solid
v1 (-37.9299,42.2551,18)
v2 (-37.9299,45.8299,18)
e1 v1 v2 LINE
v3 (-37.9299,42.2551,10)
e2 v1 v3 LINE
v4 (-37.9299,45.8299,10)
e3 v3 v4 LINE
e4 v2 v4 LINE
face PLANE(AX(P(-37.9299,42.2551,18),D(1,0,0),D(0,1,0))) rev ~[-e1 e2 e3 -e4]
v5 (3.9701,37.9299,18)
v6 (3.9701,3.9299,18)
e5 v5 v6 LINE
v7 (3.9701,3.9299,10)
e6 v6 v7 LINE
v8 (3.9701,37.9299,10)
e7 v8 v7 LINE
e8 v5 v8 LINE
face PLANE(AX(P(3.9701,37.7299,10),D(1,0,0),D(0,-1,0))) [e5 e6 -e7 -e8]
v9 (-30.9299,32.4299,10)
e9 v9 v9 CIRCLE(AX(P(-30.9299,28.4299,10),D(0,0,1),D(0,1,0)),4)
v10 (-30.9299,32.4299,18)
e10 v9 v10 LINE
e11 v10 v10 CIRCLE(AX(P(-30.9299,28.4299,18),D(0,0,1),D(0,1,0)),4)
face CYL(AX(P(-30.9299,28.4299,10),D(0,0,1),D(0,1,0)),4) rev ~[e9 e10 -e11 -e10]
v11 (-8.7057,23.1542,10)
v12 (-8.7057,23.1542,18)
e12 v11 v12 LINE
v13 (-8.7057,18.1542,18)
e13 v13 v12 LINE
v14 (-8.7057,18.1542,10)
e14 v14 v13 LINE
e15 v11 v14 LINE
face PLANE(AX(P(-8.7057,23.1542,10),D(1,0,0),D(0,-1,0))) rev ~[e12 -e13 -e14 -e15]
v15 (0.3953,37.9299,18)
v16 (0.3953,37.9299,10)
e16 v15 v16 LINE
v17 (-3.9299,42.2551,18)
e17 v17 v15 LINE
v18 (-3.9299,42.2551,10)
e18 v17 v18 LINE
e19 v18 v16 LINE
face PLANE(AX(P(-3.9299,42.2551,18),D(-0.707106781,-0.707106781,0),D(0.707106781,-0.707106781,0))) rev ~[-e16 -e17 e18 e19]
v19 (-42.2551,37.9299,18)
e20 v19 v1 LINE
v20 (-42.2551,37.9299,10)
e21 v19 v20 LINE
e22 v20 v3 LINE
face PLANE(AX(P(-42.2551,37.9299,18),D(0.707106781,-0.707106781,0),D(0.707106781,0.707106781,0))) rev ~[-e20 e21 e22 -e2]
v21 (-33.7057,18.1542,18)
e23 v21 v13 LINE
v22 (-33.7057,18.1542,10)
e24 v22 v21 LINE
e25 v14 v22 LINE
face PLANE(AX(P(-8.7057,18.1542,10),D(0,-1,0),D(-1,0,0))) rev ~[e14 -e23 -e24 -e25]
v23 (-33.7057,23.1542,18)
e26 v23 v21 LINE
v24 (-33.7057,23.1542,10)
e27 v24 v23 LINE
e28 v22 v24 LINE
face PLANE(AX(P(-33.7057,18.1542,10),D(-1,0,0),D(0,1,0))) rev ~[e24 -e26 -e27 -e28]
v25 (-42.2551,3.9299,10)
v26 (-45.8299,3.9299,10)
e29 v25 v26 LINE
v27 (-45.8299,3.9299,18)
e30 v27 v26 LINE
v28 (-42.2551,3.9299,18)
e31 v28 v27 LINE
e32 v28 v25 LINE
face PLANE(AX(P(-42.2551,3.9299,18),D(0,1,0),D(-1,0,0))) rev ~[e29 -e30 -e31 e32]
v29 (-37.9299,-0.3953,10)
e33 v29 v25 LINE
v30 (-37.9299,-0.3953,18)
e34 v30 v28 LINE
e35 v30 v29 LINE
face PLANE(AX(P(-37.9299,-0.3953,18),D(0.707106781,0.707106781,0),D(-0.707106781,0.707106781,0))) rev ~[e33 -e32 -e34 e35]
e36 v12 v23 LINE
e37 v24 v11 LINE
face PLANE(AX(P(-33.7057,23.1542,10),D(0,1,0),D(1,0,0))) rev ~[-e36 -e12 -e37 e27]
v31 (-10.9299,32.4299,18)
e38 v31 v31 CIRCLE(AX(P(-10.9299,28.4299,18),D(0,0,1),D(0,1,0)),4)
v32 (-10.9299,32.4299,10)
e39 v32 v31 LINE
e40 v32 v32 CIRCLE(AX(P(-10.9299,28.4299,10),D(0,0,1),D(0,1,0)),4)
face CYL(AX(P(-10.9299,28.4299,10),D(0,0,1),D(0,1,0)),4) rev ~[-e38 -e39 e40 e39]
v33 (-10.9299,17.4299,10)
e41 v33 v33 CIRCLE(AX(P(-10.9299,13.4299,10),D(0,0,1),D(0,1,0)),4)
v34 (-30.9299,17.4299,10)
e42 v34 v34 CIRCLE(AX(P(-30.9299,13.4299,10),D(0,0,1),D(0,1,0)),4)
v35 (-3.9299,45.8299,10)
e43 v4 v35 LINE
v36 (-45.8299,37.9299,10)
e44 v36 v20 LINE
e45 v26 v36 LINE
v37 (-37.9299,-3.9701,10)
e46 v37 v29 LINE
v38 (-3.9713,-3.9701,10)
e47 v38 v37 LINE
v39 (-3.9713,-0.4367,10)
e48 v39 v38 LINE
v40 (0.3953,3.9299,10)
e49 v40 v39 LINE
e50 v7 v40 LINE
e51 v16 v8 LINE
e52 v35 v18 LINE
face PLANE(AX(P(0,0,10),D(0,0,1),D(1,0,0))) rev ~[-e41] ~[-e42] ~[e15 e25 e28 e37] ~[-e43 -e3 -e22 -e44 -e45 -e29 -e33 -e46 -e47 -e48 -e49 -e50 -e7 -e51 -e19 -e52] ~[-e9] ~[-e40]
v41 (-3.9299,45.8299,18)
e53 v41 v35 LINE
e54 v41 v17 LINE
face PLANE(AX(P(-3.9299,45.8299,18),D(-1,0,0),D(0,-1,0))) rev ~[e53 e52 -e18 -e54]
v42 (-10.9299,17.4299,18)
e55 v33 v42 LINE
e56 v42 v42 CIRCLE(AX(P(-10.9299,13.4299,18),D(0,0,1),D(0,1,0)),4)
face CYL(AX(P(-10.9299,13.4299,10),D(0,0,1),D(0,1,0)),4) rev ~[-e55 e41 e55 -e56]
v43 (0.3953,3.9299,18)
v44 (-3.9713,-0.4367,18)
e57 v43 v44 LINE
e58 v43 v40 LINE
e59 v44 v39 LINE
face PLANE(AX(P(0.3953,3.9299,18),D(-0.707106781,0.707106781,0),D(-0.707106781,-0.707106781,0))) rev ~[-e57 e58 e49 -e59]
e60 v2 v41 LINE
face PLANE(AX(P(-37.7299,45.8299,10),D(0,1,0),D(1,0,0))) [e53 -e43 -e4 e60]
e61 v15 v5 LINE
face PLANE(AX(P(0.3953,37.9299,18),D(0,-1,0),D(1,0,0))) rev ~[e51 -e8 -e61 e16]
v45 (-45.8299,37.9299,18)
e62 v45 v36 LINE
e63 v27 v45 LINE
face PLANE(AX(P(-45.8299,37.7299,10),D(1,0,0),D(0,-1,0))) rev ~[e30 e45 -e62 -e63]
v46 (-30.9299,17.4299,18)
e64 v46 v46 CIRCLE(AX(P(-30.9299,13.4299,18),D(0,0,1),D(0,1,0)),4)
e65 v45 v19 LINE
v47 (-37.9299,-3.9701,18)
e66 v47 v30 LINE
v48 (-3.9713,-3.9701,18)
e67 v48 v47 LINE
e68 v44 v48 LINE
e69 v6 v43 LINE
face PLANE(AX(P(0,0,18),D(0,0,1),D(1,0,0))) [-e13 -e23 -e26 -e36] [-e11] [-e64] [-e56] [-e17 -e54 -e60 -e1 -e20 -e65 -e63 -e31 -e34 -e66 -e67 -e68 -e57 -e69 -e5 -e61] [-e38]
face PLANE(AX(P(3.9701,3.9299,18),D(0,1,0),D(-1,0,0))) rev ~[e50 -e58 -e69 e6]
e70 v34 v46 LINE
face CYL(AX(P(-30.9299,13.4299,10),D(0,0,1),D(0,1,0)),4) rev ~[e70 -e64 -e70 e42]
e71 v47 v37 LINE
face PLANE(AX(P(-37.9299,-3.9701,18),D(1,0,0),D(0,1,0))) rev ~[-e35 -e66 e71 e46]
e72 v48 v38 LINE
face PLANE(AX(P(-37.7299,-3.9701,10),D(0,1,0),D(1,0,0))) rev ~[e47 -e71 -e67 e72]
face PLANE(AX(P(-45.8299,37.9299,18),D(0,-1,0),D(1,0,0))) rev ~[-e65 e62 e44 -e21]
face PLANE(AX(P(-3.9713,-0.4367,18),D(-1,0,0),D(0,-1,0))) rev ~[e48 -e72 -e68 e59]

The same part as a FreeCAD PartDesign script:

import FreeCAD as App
import Part
import Sketcher

V = App.Vector
Q = App.Units.Quantity


def add_polygon(sketch, points):
    """Adds a closed chain of lines whose ends are joined by coincident constraints."""
    first, n = sketch.GeometryCount, len(points)
    for a, b in zip(points, points[1:] + points[:1]):
        sketch.addGeometry(Part.LineSegment(App.Vector(*a, 0), App.Vector(*b, 0)), False)
    for i in range(n):
        sketch.addConstraint(Sketcher.Constraint("Coincident", first + i, 2, first + (i + 1) % n, 1))

doc = App.newDocument("Part")
body = doc.addObject("PartDesign::Body", "Body")

# Sketch on XY plane
sketch1 = doc.addObject("Sketcher::SketchObject", "Sketch")
body.addObject(sketch1)
sketch1.AttachmentSupport = (doc.XY_Plane, [""])
sketch1.MapMode = "FlatFace"
sketch1.AttachmentOffset = App.Placement(V(0, 0, 10), App.Rotation())
add_polygon(sketch1, [(-4.1713, -0.3538), (0.3124, 4.1299), (3.9701, 4.1299), (3.9701, 37.7299), (0.312441, 37.729941), (-4.1299, 42.1723), (-4.1299, 45.8299), (-37.7299, 45.8299), (-37.7299, 42.1723), (-42.1723, 37.7299), (-45.8299, 37.7299), (-45.8299, 4.1299), (-42.172259, 4.129941), (-37.688583, -0.3538), (-37.7299, -0.3538), (-37.7299, -3.9701), (-4.1713, -3.9701)])  # lines 0-16
sketch1.addConstraint([
    Sketcher.Constraint("Horizontal", 1),
    Sketcher.Constraint("Vertical", 2),
    Sketcher.Constraint("Horizontal", 3),
    Sketcher.Constraint("Vertical", 5),
    Sketcher.Constraint("Horizontal", 6),
    Sketcher.Constraint("Vertical", 7),
    Sketcher.Constraint("Horizontal", 9),
    Sketcher.Constraint("Vertical", 10),
    Sketcher.Constraint("Horizontal", 11),
    Sketcher.Constraint("Horizontal", 13),
    Sketcher.Constraint("Vertical", 14),
    Sketcher.Constraint("Horizontal", 15),
    Sketcher.Constraint("Vertical", 16),
    Sketcher.Constraint("Perpendicular", 0, 4),
    Sketcher.Constraint("Perpendicular", 4, 8),
    Sketcher.Constraint("Perpendicular", 8, 12),
    Sketcher.Constraint("Horizontal", 4, 2, 7, 2),
    Sketcher.Constraint("Horizontal", 3, 2, 8, 2),
    Sketcher.Constraint("Horizontal", 1, 2, 10, 2),
    Sketcher.Constraint("Horizontal", 13, 2, 16, 2),
    Sketcher.Constraint("Vertical", 0, 2, 3, 2),
    Sketcher.Constraint("Vertical", 8, 2, 11, 2),
    Sketcher.Constraint("Vertical", 7, 2, 13, 2),
    Sketcher.Constraint("Equal", 3, 9),
    Sketcher.Constraint("Equal", 6, 2),
    Sketcher.Constraint("Equal", 11, 5),
    Sketcher.Constraint("Equal", 4, 8),
    Sketcher.Constraint("DistanceX", 6, 2, 6, 1, Q("33.6 mm")),
    Sketcher.Constraint("DistanceX", 4, 2, 2, 2, Q("8.1 mm")),
    Sketcher.Constraint("DistanceY", 14, 2, 11, 2, Q("8.1 mm")),
    Sketcher.Constraint("DistanceY", -1, 1, 0, 2, Q("4.13 mm")),
    Sketcher.Constraint("DistanceX", -1, 1, 1, 2, Q("3.97 mm")),
    Sketcher.Constraint("Distance", 0, Q("6.341 mm")),
    Sketcher.Constraint("DistanceX", 1, 1, 1, 2, Q("3.6577 mm")),
])
pad1 = doc.addObject("PartDesign::Pad", "Pad")
body.addObject(pad1)
pad1.Profile = sketch1
pad1.Length = 8

# Sketch on XY plane
sketch2 = doc.addObject("Sketcher::SketchObject", "Sketch001")
body.addObject(sketch2)
sketch2.AttachmentSupport = (doc.XY_Plane, [""])
sketch2.MapMode = "FlatFace"
sketch2.AttachmentOffset = App.Placement(V(0, 0, 18), App.Rotation())
add_polygon(sketch2, [(3.9701, 3.9299), (3.9701, 4.1299), (0.3124, 4.1299), (-4.1713, -0.3538), (-4.1713, -3.9701), (-3.9713, -3.9701), (-3.9713, -0.4367), (0.3953, 3.9299)])  # lines 0-7
add_polygon(sketch2, [(-3.9299, 45.8299), (-4.1299, 45.8299), (-4.1299, 42.1723), (0.3124, 37.7299), (3.9701, 37.7299), (3.9701, 37.9299), (0.3953, 37.9299), (-3.9299, 42.2551)])  # lines 8-15
add_polygon(sketch2, [(-42.1723, 37.7299), (-37.7299, 42.1723), (-37.7299, 45.8299), (-37.9299, 45.8299), (-37.9299, 42.2551), (-42.2551, 37.9299), (-45.8299, 37.9299), (-45.8299, 37.7299)])  # lines 16-23
add_polygon(sketch2, [(-42.1723, 4.1299), (-45.8299, 4.1299), (-45.8299, 3.9299), (-42.2551, 3.9299), (-37.9299, -0.3953), (-37.9299, -3.9701), (-37.7299, -3.9701), (-37.7299, -0.3538), (-37.6885, -0.3538)])  # lines 24-32
sketch2.addConstraint([
    Sketcher.Constraint("Vertical", 0),
    Sketcher.Constraint("Horizontal", 1),
    Sketcher.Constraint("Vertical", 3),
    Sketcher.Constraint("Horizontal", 4),
    Sketcher.Constraint("Vertical", 5),
    Sketcher.Constraint("Horizontal", 7),
    Sketcher.Constraint("Horizontal", 8),
    Sketcher.Constraint("Vertical", 9),
    Sketcher.Constraint("Horizontal", 11),
    Sketcher.Constraint("Vertical", 12),
    Sketcher.Constraint("Horizontal", 13),
    Sketcher.Constraint("Vertical", 15),
    Sketcher.Constraint("Vertical", 17),
    Sketcher.Constraint("Horizontal", 18),
    Sketcher.Constraint("Vertical", 19),
    Sketcher.Constraint("Horizontal", 21),
    Sketcher.Constraint("Vertical", 22),
    Sketcher.Constraint("Horizontal", 23),
    Sketcher.Constraint("Horizontal", 24),
    Sketcher.Constraint("Vertical", 25),
    Sketcher.Constraint("Horizontal", 26),
    Sketcher.Constraint("Vertical", 28),
    Sketcher.Constraint("Horizontal", 29),
    Sketcher.Constraint("Vertical", 30),
    Sketcher.Constraint("Horizontal", 31),
    Sketcher.Constraint("Parallel", 2, 6),
    Sketcher.Constraint("Perpendicular", 6, 10),
    Sketcher.Constraint("Parallel", 10, 14),
    Sketcher.Constraint("Perpendicular", 14, 16),
    Sketcher.Constraint("Parallel", 16, 20),
    Sketcher.Constraint("Perpendicular", 20, 27),
    Sketcher.Constraint("Parallel", 27, 32),
    Sketcher.Constraint("Horizontal", 9, 2, 16, 2),
    Sketcher.Constraint("Horizontal", 15, 2, 17, 2),
    Sketcher.Constraint("Horizontal", 14, 2, 19, 2),
    Sketcher.Constraint("Horizontal", 13, 2, 20, 2),
    Sketcher.Constraint("Horizontal", 11, 2, 22, 2),
    Sketcher.Constraint("Horizontal", 1, 2, 24, 2),
    Sketcher.Constraint("Horizontal", 7, 2, 25, 2),
    Sketcher.Constraint("Horizontal", 4, 2, 28, 2),
    Sketcher.Constraint("Horizontal", 2, 2, 30, 2),
    Sketcher.Constraint("Vertical", 1, 2, 10, 2),
    Sketcher.Constraint("Vertical", 7, 2, 11, 2),
    Sketcher.Constraint("Vertical", 6, 2, 13, 2),
    Sketcher.Constraint("Vertical", 22, 2, 24, 2),
    Sketcher.Constraint("Vertical", 20, 2, 26, 2),
    Sketcher.Constraint("Vertical", 19, 2, 27, 2),
    Sketcher.Constraint("Vertical", 17, 2, 29, 2),
    Sketcher.Constraint("Vertical", 23, 2, 32, 2),
    Sketcher.Constraint("Equal", 4, 8),
    Sketcher.Constraint("Equal", 8, 18),
    Sketcher.Constraint("Equal", 13, 21),
    Sketcher.Constraint("Equal", 11, 23),
    Sketcher.Constraint("Equal", 29, 0),
    Sketcher.Constraint("Equal", 24, 9),
    Sketcher.Constraint("Equal", 0, 12),
    Sketcher.Constraint("Equal", 19, 28),
    Sketcher.Constraint("DistanceX", 4, 1, 4, 2, Q("0.2 mm")),
    Sketcher.Constraint("DistanceX", 18, 2, 15, 2, Q("34 mm")),
    Sketcher.Constraint("DistanceY", 25, 2, 21, 2, Q("34 mm")),
    Sketcher.Constraint("DistanceY", 3, 2, 1, 2, Q("8.1 mm")),
    Sketcher.Constraint("DistanceX", -1, 1, 0, 2, Q("3.97 mm")),
    Sketcher.Constraint("DistanceY", -1, 1, 0, 2, Q("4.13 mm")),
    Sketcher.Constraint("Distance", 2, Q("6.341 mm")),
    Sketcher.Constraint("DistanceX", 1, 2, 1, 1, Q("3.6577 mm")),
    Sketcher.Constraint("DistanceX", 7, 1, 7, 2, Q("3.5748 mm")),
])
pad2 = doc.addObject("PartDesign::Pad", "Pad001")
body.addObject(pad2)
pad2.Profile = sketch2
pad2.Length = 8
pad2.Reversed = True

# Sketch on XY plane
sketch3 = doc.addObject("Sketcher::SketchObject", "Sketch002")
body.addObject(sketch3)
sketch3.AttachmentSupport = (doc.XY_Plane, [""])
sketch3.MapMode = "FlatFace"
sketch3.AttachmentOffset = App.Placement(V(0, 0, 10), App.Rotation())
sketch3.addGeometry([
    Part.Circle(V(-30.9299, 28.4299, 0), V(0, 0, 1), 4),
    Part.Circle(V(-30.9299, 13.4299, 0), V(0, 0, 1), 4),
    Part.Circle(V(-10.9299, 13.4299, 0), V(0, 0, 1), 4),
    Part.Circle(V(-10.9299, 28.4299, 0), V(0, 0, 1), 4),
], False)
sketch3.addConstraint([
    Sketcher.Constraint("Equal", 0, 1),
    Sketcher.Constraint("Equal", 1, 2),
    Sketcher.Constraint("Equal", 2, 3),
    Sketcher.Constraint("Horizontal", 1, 3, 2, 3),
    Sketcher.Constraint("Horizontal", 0, 3, 3, 3),
    Sketcher.Constraint("Vertical", 0, 3, 1, 3),
    Sketcher.Constraint("Vertical", 2, 3, 3, 3),
    Sketcher.Constraint("Diameter", 0, Q("8 mm")),
    Sketcher.Constraint("DistanceY", 1, 3, 0, 3, Q("15 mm")),
    Sketcher.Constraint("DistanceX", 1, 3, 2, 3, Q("20 mm")),
    Sketcher.Constraint("DistanceX", 0, 3, -1, 1, Q("30.93 mm")),
    Sketcher.Constraint("DistanceY", -1, 1, 0, 3, Q("28.43 mm")),
])
doc.recompute()
hole = doc.addObject("PartDesign::Hole", "Hole")
body.addObject(hole)
hole.Profile = sketch3
hole.ThreadType = "None"
hole.Diameter = 8
hole.DepthType = "ThroughAll"
hole.Reversed = True

# Sketch on XY plane
sketch4 = doc.addObject("Sketcher::SketchObject", "Sketch003")
body.addObject(sketch4)
sketch4.AttachmentSupport = (doc.XY_Plane, [""])
sketch4.MapMode = "FlatFace"
sketch4.AttachmentOffset = App.Placement(V(0, 0, 10), App.Rotation())
add_polygon(sketch4, [(-8.7057, 23.1542), (-8.7057, 18.1542), (-33.7057, 18.1542), (-33.7057, 23.1542)])  # lines 0-3
sketch4.addConstraint([
    Sketcher.Constraint("Vertical", 0),
    Sketcher.Constraint("Horizontal", 1),
    Sketcher.Constraint("Vertical", 2),
    Sketcher.Constraint("Horizontal", 3),
    Sketcher.Constraint("DistanceX", 1, 2, 1, 1, Q("25 mm")),
    Sketcher.Constraint("DistanceY", 0, 2, 0, 1, Q("5 mm")),
    Sketcher.Constraint("DistanceX", 0, 2, -1, 1, Q("8.7057 mm")),
    Sketcher.Constraint("DistanceY", -1, 1, 0, 2, Q("18.1542 mm")),
])
pocket1 = doc.addObject("PartDesign::Pocket", "Pocket")
body.addObject(pocket1)
pocket1.Profile = sketch4
pocket1.Length = 10
pocket1.Reversed = True

doc.recompute()
